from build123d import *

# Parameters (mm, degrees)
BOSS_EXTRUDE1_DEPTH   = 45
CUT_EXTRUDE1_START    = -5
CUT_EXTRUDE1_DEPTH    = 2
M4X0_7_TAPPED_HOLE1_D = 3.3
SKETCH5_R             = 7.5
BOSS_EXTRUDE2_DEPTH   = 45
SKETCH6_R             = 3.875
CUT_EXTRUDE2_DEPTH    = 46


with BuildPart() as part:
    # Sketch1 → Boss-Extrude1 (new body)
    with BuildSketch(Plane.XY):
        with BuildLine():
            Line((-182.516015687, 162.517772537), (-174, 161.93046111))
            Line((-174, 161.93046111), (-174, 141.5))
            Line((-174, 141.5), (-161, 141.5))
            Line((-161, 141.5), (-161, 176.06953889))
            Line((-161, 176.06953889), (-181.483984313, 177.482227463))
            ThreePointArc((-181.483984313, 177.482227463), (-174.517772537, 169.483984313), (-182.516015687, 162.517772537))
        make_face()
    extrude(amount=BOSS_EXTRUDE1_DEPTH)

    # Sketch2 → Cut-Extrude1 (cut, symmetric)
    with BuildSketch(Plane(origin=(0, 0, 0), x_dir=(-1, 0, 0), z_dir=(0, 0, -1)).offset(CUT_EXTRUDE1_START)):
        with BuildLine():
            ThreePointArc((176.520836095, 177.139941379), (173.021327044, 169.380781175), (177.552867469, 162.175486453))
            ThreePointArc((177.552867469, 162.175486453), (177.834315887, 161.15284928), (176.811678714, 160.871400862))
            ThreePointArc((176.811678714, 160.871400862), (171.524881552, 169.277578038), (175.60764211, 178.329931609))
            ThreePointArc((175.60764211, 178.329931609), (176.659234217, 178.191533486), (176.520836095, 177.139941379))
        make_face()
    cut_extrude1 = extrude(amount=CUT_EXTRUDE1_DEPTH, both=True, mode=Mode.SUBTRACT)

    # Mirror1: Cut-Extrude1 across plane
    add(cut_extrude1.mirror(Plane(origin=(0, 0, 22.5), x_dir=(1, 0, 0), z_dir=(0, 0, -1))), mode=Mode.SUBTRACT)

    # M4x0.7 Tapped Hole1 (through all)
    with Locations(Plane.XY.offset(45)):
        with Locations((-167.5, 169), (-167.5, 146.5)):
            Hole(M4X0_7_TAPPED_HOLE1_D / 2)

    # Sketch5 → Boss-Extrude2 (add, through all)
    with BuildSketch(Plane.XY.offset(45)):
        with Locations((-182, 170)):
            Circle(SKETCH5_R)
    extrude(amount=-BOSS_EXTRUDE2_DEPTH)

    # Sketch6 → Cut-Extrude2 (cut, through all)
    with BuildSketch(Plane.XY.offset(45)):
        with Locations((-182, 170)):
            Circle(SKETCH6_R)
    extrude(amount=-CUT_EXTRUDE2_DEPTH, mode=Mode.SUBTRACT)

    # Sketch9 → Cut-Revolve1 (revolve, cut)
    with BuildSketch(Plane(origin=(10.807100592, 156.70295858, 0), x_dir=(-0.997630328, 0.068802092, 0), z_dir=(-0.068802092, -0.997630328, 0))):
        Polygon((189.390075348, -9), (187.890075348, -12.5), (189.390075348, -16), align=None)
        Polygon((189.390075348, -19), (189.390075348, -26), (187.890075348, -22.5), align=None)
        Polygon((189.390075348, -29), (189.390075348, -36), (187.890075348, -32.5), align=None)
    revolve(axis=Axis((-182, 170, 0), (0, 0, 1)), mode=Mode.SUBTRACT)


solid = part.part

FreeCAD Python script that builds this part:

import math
import FreeCAD as App
import Part
import Sketcher
from FreeCAD import Vector

doc = App.newDocument("Part")
body = doc.addObject("PartDesign::Body", "Body")

sketch1 = doc.addObject("Sketcher::SketchObject", "Sketch")
body.addObject(sketch1)
sketch1.AttachmentSupport = (doc.XY_Plane, [""])
sketch1.MapMode = "FlatFace"
sketch1.addGeometry(Part.LineSegment(Vector(-182.516016, 162.517773, 0), Vector(-174, 161.930461, 0)), False)
sketch1.addGeometry(Part.LineSegment(Vector(-174, 161.930461, 0), Vector(-174, 141.5, 0)), False)
sketch1.addGeometry(Part.LineSegment(Vector(-174, 141.5, 0), Vector(-161, 141.5, 0)), False)
sketch1.addGeometry(Part.LineSegment(Vector(-161, 141.5, 0), Vector(-161, 176.069539, 0)), False)
sketch1.addGeometry(Part.LineSegment(Vector(-161, 176.069539, 0), Vector(-181.483984, 177.482227, 0)), False)
sketch1.addGeometry(Part.ArcOfCircle(Part.Circle(Vector(-182, 170, 0), Vector(0, 0, 1), 7.5), math.radians(-93.945186), math.radians(86.054814)), False)
sketch1.addConstraint(Sketcher.Constraint("Coincident", 0, 2, 1, 1))
sketch1.addConstraint(Sketcher.Constraint("Coincident", 1, 2, 2, 1))
sketch1.addConstraint(Sketcher.Constraint("Coincident", 2, 2, 3, 1))
sketch1.addConstraint(Sketcher.Constraint("Coincident", 3, 2, 4, 1))
sketch1.addConstraint(Sketcher.Constraint("Tangent", 4, 2, 5, 2))
sketch1.addConstraint(Sketcher.Constraint("Tangent", 5, 1, 0, 1))
sketch1.addConstraint(Sketcher.Constraint("Vertical", 1))
sketch1.addConstraint(Sketcher.Constraint("Horizontal", 2))
sketch1.addConstraint(Sketcher.Constraint("Vertical", 3))
sketch1.addConstraint(Sketcher.Constraint("Parallel", 0, 4))
sketch1.addConstraint(Sketcher.Constraint("Radius", 5, 7.5))
sketch1.addConstraint(Sketcher.Constraint("DistanceX", 2, 1, 2, 2, 13.0))
sketch1.addConstraint(Sketcher.Constraint("DistanceX", 5, 3, -1, 1, 182.0))
sketch1.addConstraint(Sketcher.Constraint("DistanceY", -1, 1, 5, 3, 170.0))
sketch1.addConstraint(Sketcher.Constraint("DistanceX", 0, 2, -1, 1, 174.0))
sketch1.addConstraint(Sketcher.Constraint("DistanceY", -1, 1, 1, 2, 141.5))
sketch1.addConstraint(Sketcher.Constraint("DistanceY", 1, 2, 1, 1, 20.430461))
pad1 = doc.addObject("PartDesign::Pad", "Pad")
body.addObject(pad1)
pad1.Profile = sketch1
pad1.Length = 45

sketch2 = doc.addObject("Sketcher::SketchObject", "Sketch001")
body.addObject(sketch2)
sketch2.AttachmentSupport = (doc.XY_Plane, [""])
sketch2.MapMode = "FlatFace"
sketch2.AttachmentOffset = App.Placement(Vector(0, 0, 5), App.Rotation())
sketch2.addGeometry(Part.ArcOfCircle(Part.Circle(Vector(-182, 170, 0), Vector(0, 0, 1), 9), math.radians(-60.387876), math.radians(52.497504)), False)
sketch2.addGeometry(Part.ArcOfCircle(Part.Circle(Vector(-176.064239, 177.734936, 0), Vector(0, 0, 1), 0.75), math.radians(52.497504), math.radians(232.497504)), False)
sketch2.addGeometry(Part.ArcOfCircle(Part.Circle(Vector(-182, 170, 0), Vector(0, 0, 1), 10.5), math.radians(-60.387876), math.radians(52.497504)), False)
sketch2.addGeometry(Part.ArcOfCircle(Part.Circle(Vector(-177.182273, 161.523444, 0), Vector(0, 0, 1), 0.75), math.radians(119.612123), math.radians(299.612124)), False)
sketch2.addConstraint(Sketcher.Constraint("Tangent", 0, 2, 1, 2))
sketch2.addConstraint(Sketcher.Constraint("Tangent", 1, 1, 2, 2))
sketch2.addConstraint(Sketcher.Constraint("Tangent", 2, 1, 3, 2))
sketch2.addConstraint(Sketcher.Constraint("Tangent", 3, 1, 0, 1))
sketch2.addConstraint(Sketcher.Constraint("Coincident", 2, 3, 0, 3))
sketch2.addConstraint(Sketcher.Constraint("Radius", 0, 9.0))
sketch2.addConstraint(Sketcher.Constraint("Radius", 2, 10.5))
sketch2.addConstraint(Sketcher.Constraint("DistanceX", 0, 3, -1, 1, 182.0))
sketch2.addConstraint(Sketcher.Constraint("DistanceY", -1, 1, 0, 3, 170.0))
sketch2.addConstraint(Sketcher.Constraint("DistanceY", -1, 1, 2, 1, 160.871401))
sketch2.addConstraint(Sketcher.Constraint("DistanceX", 1, 3, -1, 1, 176.064239))
pocket1 = doc.addObject("PartDesign::Pocket", "Pocket")
body.addObject(pocket1)
pocket1.Profile = sketch2
pocket1.Length = 4
pocket1.Midplane = True
doc.recompute()

datumplane = doc.addObject("PartDesign::Plane", "DatumPlane")
body.addObject(datumplane)
datumplane.AttachmentSupport = (doc.XY_Plane, [""])
datumplane.MapMode = "FlatFace"
datumplane.AttachmentOffset = App.Placement(Vector(0, 0, 22.5), App.Rotation())
mirrored = doc.addObject("PartDesign::Mirrored", "Mirrored")
body.addObject(mirrored)
mirrored.Originals = [pocket1]
mirrored.MirrorPlane = (datumplane, [""])
body.Tip = mirrored

sketch3 = doc.addObject("Sketcher::SketchObject", "Sketch002")
body.addObject(sketch3)
sketch3.AttachmentSupport = (doc.XY_Plane, [""])
sketch3.MapMode = "FlatFace"
sketch3.AttachmentOffset = App.Placement(Vector(0, 0, 45), App.Rotation())
sketch3.addGeometry(Part.Circle(Vector(-167.5, 169, 0), Vector(0, 0, 1), 1.65), False)
sketch3.addGeometry(Part.Circle(Vector(-167.5, 146.5, 0), Vector(0, 0, 1), 1.65), False)
sketch3.addConstraint(Sketcher.Constraint("Equal", 0, 1))
sketch3.addConstraint(Sketcher.Constraint("Vertical", 0, 3, 1, 3))
sketch3.addConstraint(Sketcher.Constraint("Diameter", 0, 3.3))
sketch3.addConstraint(Sketcher.Constraint("DistanceY", -1, 1, 0, 3, 169.0))
sketch3.addConstraint(Sketcher.Constraint("DistanceX", 0, 3, -1, 1, 167.5))
sketch3.addConstraint(Sketcher.Constraint("DistanceY", -1, 1, 1, 3, 146.5))
doc.recompute()
hole = doc.addObject("PartDesign::Hole", "Hole")
body.addObject(hole)
hole.Profile = sketch3
hole.ThreadType = "None"
hole.Diameter = 3.3
hole.DepthType = "ThroughAll"

sketch4 = doc.addObject("Sketcher::SketchObject", "Sketch003")
body.addObject(sketch4)
sketch4.AttachmentSupport = (doc.XY_Plane, [""])
sketch4.MapMode = "FlatFace"
sketch4.AttachmentOffset = App.Placement(Vector(0, 0, 45), App.Rotation())
sketch4.addGeometry(Part.Circle(Vector(-182, 170, 0), Vector(0, 0, 1), 7.5), False)
sketch4.addConstraint(Sketcher.Constraint("Diameter", 0, 15.0))
sketch4.addConstraint(Sketcher.Constraint("DistanceX", 0, 3, -1, 1, 182.0))
sketch4.addConstraint(Sketcher.Constraint("DistanceY", -1, 1, 0, 3, 170.0))
pad2 = doc.addObject("PartDesign::Pad", "Pad001")
body.addObject(pad2)
pad2.Profile = sketch4
pad2.Length = 45
pad2.Reversed = True

sketch5 = doc.addObject("Sketcher::SketchObject", "Sketch004")
body.addObject(sketch5)
sketch5.AttachmentSupport = (doc.XY_Plane, [""])
sketch5.MapMode = "FlatFace"
sketch5.AttachmentOffset = App.Placement(Vector(0, 0, 45), App.Rotation())
sketch5.addGeometry(Part.Circle(Vector(-182, 170, 0), Vector(0, 0, 1), 3.875), False)
sketch5.addConstraint(Sketcher.Constraint("Diameter", 0, 7.75))
sketch5.addConstraint(Sketcher.Constraint("DistanceX", 0, 3, -1, 1, 182.0))
sketch5.addConstraint(Sketcher.Constraint("DistanceY", -1, 1, 0, 3, 170.0))
pocket2 = doc.addObject("PartDesign::Pocket", "Pocket001")
body.addObject(pocket2)
pocket2.Profile = sketch5
pocket2.Type = "ThroughAll"

sketch6 = doc.addObject("Sketcher::SketchObject", "Sketch005")
body.addObject(sketch6)
sketch6.Placement = App.Placement(Vector(10.807101, 156.702959, 0), App.Rotation(Vector(-0.997630328, 0.068802092, 0), Vector(0, 0, -0.999999999), Vector(-0.068802092, -0.997630328, 0), "ZXY"))
sketch6.addGeometry(Part.LineSegment(Vector(189.390075, -9, 0), Vector(187.890075, -12.5, 0)), False)
sketch6.addGeometry(Part.LineSegment(Vector(187.890075, -12.5, 0), Vector(189.390075, -16, 0)), False)
sketch6.addGeometry(Part.LineSegment(Vector(189.390075, -16, 0), Vector(189.390075, -9, 0)), False)
sketch6.addGeometry(Part.LineSegment(Vector(189.390075, -26, 0), Vector(189.390075, -19, 0)), False)
sketch6.addGeometry(Part.LineSegment(Vector(189.390075, -19, 0), Vector(187.890075, -22.5, 0)), False)
sketch6.addGeometry(Part.LineSegment(Vector(187.890075, -22.5, 0), Vector(189.390075, -26, 0)), False)
sketch6.addGeometry(Part.LineSegment(Vector(189.390075, -36, 0), Vector(189.390075, -29, 0)), False)
sketch6.addGeometry(Part.LineSegment(Vector(189.390075, -29, 0), Vector(187.890075, -32.5, 0)), False)
sketch6.addGeometry(Part.LineSegment(Vector(187.890075, -32.5, 0), Vector(189.390075, -36, 0)), False)
sketch6.addGeometry(Part.LineSegment(Vector(193.265075, -9, 0), Vector(193.265075, -36, 0)), True)
sketch6.addConstraint(Sketcher.Constraint("Coincident", 0, 2, 1, 1))
sketch6.addConstraint(Sketcher.Constraint("Coincident", 1, 2, 2, 1))
sketch6.addConstraint(Sketcher.Constraint("Coincident", 2, 2, 0, 1))
sketch6.addConstraint(Sketcher.Constraint("Coincident", 3, 2, 4, 1))
sketch6.addConstraint(Sketcher.Constraint("Coincident", 4, 2, 5, 1))
sketch6.addConstraint(Sketcher.Constraint("Coincident", 5, 2, 3, 1))
sketch6.addConstraint(Sketcher.Constraint("Coincident", 6, 2, 7, 1))
sketch6.addConstraint(Sketcher.Constraint("Coincident", 7, 2, 8, 1))
sketch6.addConstraint(Sketcher.Constraint("Coincident", 8, 2, 6, 1))
sketch6.addConstraint(Sketcher.Constraint("Vertical", 2))
sketch6.addConstraint(Sketcher.Constraint("Vertical", 3))
sketch6.addConstraint(Sketcher.Constraint("Vertical", 6))
sketch6.addConstraint(Sketcher.Constraint("Vertical", 9))
sketch6.addConstraint(Sketcher.Constraint("Parallel", 0, 4))
sketch6.addConstraint(Sketcher.Constraint("Parallel", 1, 5))
sketch6.addConstraint(Sketcher.Constraint("Parallel", 4, 7))
sketch6.addConstraint(Sketcher.Constraint("Parallel", 5, 8))
sketch6.addConstraint(Sketcher.Constraint("Horizontal", 2, 2, 9, 1))
sketch6.addConstraint(Sketcher.Constraint("Horizontal", 8, 2, 9, 2))
sketch6.addConstraint(Sketcher.Constraint("Vertical", 2, 2, 3, 2))
sketch6.addConstraint(Sketcher.Constraint("Vertical", 0, 2, 4, 2))
sketch6.addConstraint(Sketcher.Constraint("Vertical", 5, 2, 6, 2))
sketch6.addConstraint(Sketcher.Constraint("Vertical", 4, 2, 7, 2))
sketch6.addConstraint(Sketcher.Constraint("Equal", 0, 1))
sketch6.addConstraint(Sketcher.Constraint("DistanceY", 2, 1, 2, 2, 7.0))
sketch6.addConstraint(Sketcher.Constraint("DistanceY", 9, 2, 9, 1, 27.0))
sketch6.addConstraint(Sketcher.Constraint("DistanceY", 1, 2, -1, 1, 16.0))
sketch6.addConstraint(Sketcher.Constraint("DistanceY", 3, 2, -1, 1, 19.0))
sketch6.addConstraint(Sketcher.Constraint("DistanceX", 0, 2, 1, 2, 1.5))
sketch6.addConstraint(Sketcher.Constraint("DistanceX", 2, 2, 9, 1, 3.875))
sketch6.addConstraint(Sketcher.Constraint("DistanceX", -1, 1, 0, 2, 187.890075))
groove = doc.addObject("PartDesign::Groove", "Groove")
body.addObject(groove)
groove.Profile = sketch6
groove.ReferenceAxis = (sketch6, ["Axis0"])
groove.Angle = 360

doc.recompute()
